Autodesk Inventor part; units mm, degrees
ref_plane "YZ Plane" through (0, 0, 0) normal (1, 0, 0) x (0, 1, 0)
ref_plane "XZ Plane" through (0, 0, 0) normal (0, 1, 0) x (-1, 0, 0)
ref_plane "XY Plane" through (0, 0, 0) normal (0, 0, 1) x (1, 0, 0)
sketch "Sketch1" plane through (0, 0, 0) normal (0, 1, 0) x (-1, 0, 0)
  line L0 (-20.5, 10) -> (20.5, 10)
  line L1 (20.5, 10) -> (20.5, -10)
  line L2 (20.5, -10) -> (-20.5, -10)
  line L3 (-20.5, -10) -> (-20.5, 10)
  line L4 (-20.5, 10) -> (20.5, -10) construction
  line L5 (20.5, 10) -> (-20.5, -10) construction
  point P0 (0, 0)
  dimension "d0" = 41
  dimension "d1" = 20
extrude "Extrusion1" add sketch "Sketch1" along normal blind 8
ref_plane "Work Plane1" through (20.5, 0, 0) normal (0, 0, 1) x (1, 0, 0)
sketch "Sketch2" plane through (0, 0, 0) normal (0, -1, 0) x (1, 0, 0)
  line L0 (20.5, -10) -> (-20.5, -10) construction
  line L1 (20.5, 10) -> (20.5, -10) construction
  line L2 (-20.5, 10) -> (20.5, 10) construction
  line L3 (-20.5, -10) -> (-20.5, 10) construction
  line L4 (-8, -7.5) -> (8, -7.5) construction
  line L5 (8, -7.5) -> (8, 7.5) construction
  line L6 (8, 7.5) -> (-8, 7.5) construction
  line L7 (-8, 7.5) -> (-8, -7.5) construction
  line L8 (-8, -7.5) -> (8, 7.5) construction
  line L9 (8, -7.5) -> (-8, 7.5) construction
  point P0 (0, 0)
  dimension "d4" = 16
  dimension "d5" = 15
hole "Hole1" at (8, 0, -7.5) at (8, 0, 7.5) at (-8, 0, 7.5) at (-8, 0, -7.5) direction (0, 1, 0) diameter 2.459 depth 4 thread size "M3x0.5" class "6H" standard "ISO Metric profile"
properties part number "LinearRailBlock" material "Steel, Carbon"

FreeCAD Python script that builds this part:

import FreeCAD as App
import Part
import Sketcher
from FreeCAD import Vector
Q = App.Units.Quantity

doc = App.newDocument("Part")
params = doc.addObject("Spreadsheet::Sheet", "Params")
for row, (alias, value) in enumerate([
    ("sketch1_width", "41 mm"),
    ("sketch1_height", "20 mm"),
    ("pad1_length", "8 mm"),
    ("hole_diameter", "2.459 mm"),
    ("hole_depth", "4 mm"),
], start=1):
    params.set(f"A{row}", alias)
    params.set(f"B{row}", "=" + value)
    params.setAlias(f"B{row}", alias)

body = doc.addObject("PartDesign::Body", "Body")

sketch1 = doc.addObject("Sketcher::SketchObject", "Sketch")
body.addObject(sketch1)
sketch1.AttachmentSupport = (doc.XZ_Plane, [""])
sketch1.MapMode = "FlatFace"
sketch1.addGeometry(Part.LineSegment(Vector(-20.5, 10, 0), Vector(20.5, 10, 0)), False)
sketch1.addGeometry(Part.LineSegment(Vector(20.5, 10, 0), Vector(20.5, -10, 0)), False)
sketch1.addGeometry(Part.LineSegment(Vector(20.5, -10, 0), Vector(-20.5, -10, 0)), False)
sketch1.addGeometry(Part.LineSegment(Vector(-20.5, -10, 0), Vector(-20.5, 10, 0)), False)
sketch1.addConstraint(Sketcher.Constraint("Coincident", 0, 2, 1, 1))
sketch1.addConstraint(Sketcher.Constraint("Coincident", 1, 2, 2, 1))
sketch1.addConstraint(Sketcher.Constraint("Coincident", 2, 2, 3, 1))
sketch1.addConstraint(Sketcher.Constraint("Coincident", 3, 2, 0, 1))
sketch1.addConstraint(Sketcher.Constraint("Horizontal", 0))
sketch1.addConstraint(Sketcher.Constraint("Vertical", 1))
sketch1.addConstraint(Sketcher.Constraint("Horizontal", 2))
sketch1.addConstraint(Sketcher.Constraint("Vertical", 3))
sketch1.addConstraint(Sketcher.Constraint("Symmetric", 0, 2, 2, 2, -1, 1))
sketch1.addConstraint(Sketcher.Constraint("DistanceX", 0, 1, 0, 2, Q("41 mm")))
sketch1.addConstraint(Sketcher.Constraint("DistanceY", 1, 2, 1, 1, Q("20 mm")))
sketch1.setExpression("Constraints[9]", "Params.sketch1_width")
sketch1.setExpression("Constraints[10]", "Params.sketch1_height")
pad1 = doc.addObject("PartDesign::Pad", "Pad")
body.addObject(pad1)
pad1.Profile = sketch1
pad1.setExpression("Length", "Params.pad1_length")
pad1.Reversed = True

sketch2 = doc.addObject("Sketcher::SketchObject", "Sketch001")
body.addObject(sketch2)
sketch2.AttachmentSupport = (doc.XZ_Plane, [""])
sketch2.MapMode = "FlatFace"
sketch2.addGeometry(Part.Circle(Vector(8, -7.5, 0), Vector(0, 0, 1), 1.2295), False)
sketch2.addGeometry(Part.Circle(Vector(8, 7.5, 0), Vector(0, 0, 1), 1.2295), False)
sketch2.addGeometry(Part.Circle(Vector(-8, 7.5, 0), Vector(0, 0, 1), 1.2295), False)
sketch2.addGeometry(Part.Circle(Vector(-8, -7.5, 0), Vector(0, 0, 1), 1.2295), False)
sketch2.addConstraint(Sketcher.Constraint("Equal", 0, 1))
sketch2.addConstraint(Sketcher.Constraint("Equal", 1, 2))
sketch2.addConstraint(Sketcher.Constraint("Equal", 2, 3))
sketch2.addConstraint(Sketcher.Constraint("Symmetric", 0, 3, 2, 3, -1, 1))
sketch2.addConstraint(Sketcher.Constraint("Symmetric", 1, 3, 3, 3, -1, 1))
sketch2.addConstraint(Sketcher.Constraint("Symmetric", 1, 3, 2, 3, -2))
sketch2.addConstraint(Sketcher.Constraint("Diameter", 0, Q("2.459 mm")))
sketch2.addConstraint(Sketcher.Constraint("DistanceX", -1, 1, 0, 3, Q("8 mm")))
sketch2.addConstraint(Sketcher.Constraint("DistanceY", 0, 3, 1, 3, Q("15 mm")))
doc.recompute()
hole = doc.addObject("PartDesign::Hole", "Hole")
body.addObject(hole)
hole.Profile = sketch2
hole.ThreadType = "None"
hole.setExpression("Diameter", "Params.hole_diameter")
hole.DepthType = "Dimension"
hole.setExpression("Depth", "Params.hole_depth")
hole.DrillPoint = "Flat"

doc.recompute()
